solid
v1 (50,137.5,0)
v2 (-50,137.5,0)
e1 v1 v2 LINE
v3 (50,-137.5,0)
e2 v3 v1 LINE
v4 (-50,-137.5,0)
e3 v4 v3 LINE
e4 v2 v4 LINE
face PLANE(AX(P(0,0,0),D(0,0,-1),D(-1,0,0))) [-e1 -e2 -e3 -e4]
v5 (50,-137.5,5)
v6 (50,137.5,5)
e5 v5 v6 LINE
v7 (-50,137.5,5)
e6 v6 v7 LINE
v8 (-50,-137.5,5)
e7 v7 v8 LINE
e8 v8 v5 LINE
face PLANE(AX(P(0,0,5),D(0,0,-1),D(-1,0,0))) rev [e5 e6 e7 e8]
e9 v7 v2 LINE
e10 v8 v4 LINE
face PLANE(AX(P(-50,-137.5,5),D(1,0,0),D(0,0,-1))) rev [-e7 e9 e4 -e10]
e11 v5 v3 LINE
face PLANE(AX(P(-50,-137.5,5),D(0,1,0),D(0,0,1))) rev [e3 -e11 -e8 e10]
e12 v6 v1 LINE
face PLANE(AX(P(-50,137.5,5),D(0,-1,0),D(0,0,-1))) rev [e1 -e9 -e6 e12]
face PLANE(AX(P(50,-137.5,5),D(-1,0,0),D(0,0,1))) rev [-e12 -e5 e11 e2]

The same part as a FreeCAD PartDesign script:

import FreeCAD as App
import Part
import Sketcher

V = App.Vector
Q = App.Units.Quantity


def add_polygon(sketch, points):
    """Adds a closed chain of lines whose ends are joined by coincident constraints."""
    first, n = sketch.GeometryCount, len(points)
    for a, b in zip(points, points[1:] + points[:1]):
        sketch.addGeometry(Part.LineSegment(App.Vector(*a, 0), App.Vector(*b, 0)), False)
    for i in range(n):
        sketch.addConstraint(Sketcher.Constraint("Coincident", first + i, 2, first + (i + 1) % n, 1))

doc = App.newDocument("Part")
body = doc.addObject("PartDesign::Body", "Body")

# Sketch on XY plane
sketch1 = body.newObject("Sketcher::SketchObject", "Sketch")
sketch1.AttachmentSupport = (doc.getObject("XY_Plane"), [""])
sketch1.MapMode = "FlatFace"
add_polygon(sketch1, [(-50, 138), (-50, -138), (50, -138), (50, 138)])  # lines 0-3
sketch1.addConstraint(Sketcher.Constraint("Vertical", 0))
sketch1.addConstraint(Sketcher.Constraint("Horizontal", 1))
sketch1.addConstraint(Sketcher.Constraint("Vertical", 2))
sketch1.addConstraint(Sketcher.Constraint("Horizontal", 3))
sketch1.addConstraint(Sketcher.Constraint("Symmetric", 0, 2, 2, 2, -1, 1))
sketch1.addConstraint(Sketcher.Constraint("DistanceX", 1, 1, 1, 2, Q("100 mm")))
sketch1.addConstraint(Sketcher.Constraint("DistanceY", 0, 2, 0, 1, Q("275 mm")))
pad1 = body.newObject("PartDesign::Pad", "Pad")
pad1.Profile = sketch1
pad1.Length = 5

doc.recompute()
